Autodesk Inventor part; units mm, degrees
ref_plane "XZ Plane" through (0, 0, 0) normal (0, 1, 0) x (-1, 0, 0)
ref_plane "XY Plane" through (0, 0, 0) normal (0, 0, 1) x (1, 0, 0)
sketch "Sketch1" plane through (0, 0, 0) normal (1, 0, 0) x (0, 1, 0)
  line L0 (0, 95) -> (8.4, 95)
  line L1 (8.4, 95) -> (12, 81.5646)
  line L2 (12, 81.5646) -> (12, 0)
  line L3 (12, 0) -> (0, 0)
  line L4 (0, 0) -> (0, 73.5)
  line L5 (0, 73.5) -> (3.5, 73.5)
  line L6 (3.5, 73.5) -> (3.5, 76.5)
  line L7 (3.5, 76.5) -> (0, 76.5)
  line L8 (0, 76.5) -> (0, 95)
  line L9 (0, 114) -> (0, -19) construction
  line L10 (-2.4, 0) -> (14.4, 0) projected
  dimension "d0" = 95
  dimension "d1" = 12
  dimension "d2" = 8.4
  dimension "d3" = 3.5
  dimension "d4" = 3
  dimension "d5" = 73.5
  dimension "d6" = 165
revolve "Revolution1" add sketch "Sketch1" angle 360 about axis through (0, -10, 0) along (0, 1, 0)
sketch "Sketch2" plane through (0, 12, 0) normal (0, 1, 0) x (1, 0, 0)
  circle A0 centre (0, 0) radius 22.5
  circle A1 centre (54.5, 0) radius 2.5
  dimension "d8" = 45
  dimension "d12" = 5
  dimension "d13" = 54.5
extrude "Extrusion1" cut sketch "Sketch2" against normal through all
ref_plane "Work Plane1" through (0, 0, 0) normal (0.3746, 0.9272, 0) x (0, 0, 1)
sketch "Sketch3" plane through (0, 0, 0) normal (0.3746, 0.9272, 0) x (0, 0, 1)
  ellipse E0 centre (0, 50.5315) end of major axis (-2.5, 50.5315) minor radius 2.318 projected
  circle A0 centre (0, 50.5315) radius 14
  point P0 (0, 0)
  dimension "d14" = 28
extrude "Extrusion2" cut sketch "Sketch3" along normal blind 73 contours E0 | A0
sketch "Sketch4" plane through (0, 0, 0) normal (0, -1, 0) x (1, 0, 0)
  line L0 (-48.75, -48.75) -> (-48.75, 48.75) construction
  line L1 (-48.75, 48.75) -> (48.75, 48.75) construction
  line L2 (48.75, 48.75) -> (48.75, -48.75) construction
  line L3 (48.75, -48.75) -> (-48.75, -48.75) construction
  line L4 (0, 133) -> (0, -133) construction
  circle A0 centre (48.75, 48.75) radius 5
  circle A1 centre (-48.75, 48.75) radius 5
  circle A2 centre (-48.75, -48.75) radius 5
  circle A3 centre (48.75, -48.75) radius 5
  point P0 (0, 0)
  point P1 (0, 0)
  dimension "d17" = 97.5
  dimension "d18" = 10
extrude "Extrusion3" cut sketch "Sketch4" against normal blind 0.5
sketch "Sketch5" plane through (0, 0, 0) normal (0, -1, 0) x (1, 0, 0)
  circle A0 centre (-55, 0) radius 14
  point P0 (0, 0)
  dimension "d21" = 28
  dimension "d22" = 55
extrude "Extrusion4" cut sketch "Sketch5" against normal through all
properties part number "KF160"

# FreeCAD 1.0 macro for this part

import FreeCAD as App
import Part
import Sketcher
from FreeCAD import Vector
Q = App.Units.Quantity


def add_polygon(sketch, points):
    """Adds a closed chain of lines whose ends are joined by coincident constraints."""
    first, n = sketch.GeometryCount, len(points)
    for a, b in zip(points, points[1:] + points[:1]):
        sketch.addGeometry(Part.LineSegment(App.Vector(*a, 0), App.Vector(*b, 0)), False)
    for i in range(n):
        sketch.addConstraint(Sketcher.Constraint("Coincident", first + i, 2, first + (i + 1) % n, 1))

doc = App.newDocument("Part")
body = doc.addObject("PartDesign::Body", "Body")

# Sketch on YZ plane
sketch1 = body.newObject("Sketcher::SketchObject", "Sketch")
sketch1.AttachmentSupport = (doc.getObject("YZ_Plane"), [""])
sketch1.MapMode = "FlatFace"
add_polygon(sketch1, [(8.4, 95), (0, 95), (0, 76.5), (3.5, 76.5), (3.5, 73.5), (0, 73.5), (0, 0), (12, 0), (12, 81.6)])  # lines 0-8
sketch1.addConstraint([
    Sketcher.Constraint("Horizontal", 0),
    Sketcher.Constraint("Vertical", 1),
    Sketcher.Constraint("Horizontal", 2),
    Sketcher.Constraint("Vertical", 3),
    Sketcher.Constraint("Horizontal", 4),
    Sketcher.Constraint("Vertical", 5),
    Sketcher.Constraint("Horizontal", 6),
    Sketcher.Constraint("Vertical", 7),
    Sketcher.Constraint("Coincident", 5, 2, -1, 1),
    Sketcher.Constraint("PointOnObject", 0, 2, -2),
    Sketcher.Constraint("DistanceX", 6, 1, 6, 2, Q("12 mm")),
    Sketcher.Constraint("DistanceY", 3, 2, 3, 1, Q("3 mm")),
    Sketcher.Constraint("DistanceX", 0, 2, 0, 1, Q("8.4 mm")),
    Sketcher.Constraint("DistanceX", 2, 1, 2, 2, Q("3.5 mm")),
    Sketcher.Constraint("DistanceY", 5, 2, 5, 1, Q("73.5 mm")),
    Sketcher.Constraint("DistanceY", -1, 1, 0, 2, Q("95 mm")),
    Sketcher.Constraint("Angle", 8, Q("105 deg")),
])
revolution = body.newObject("PartDesign::Revolution", "Revolution")
revolution.Profile = sketch1
revolution.ReferenceAxis = (sketch1, ["H_Axis"])
revolution.Angle = 360

# Sketch on XZ plane
sketch2 = body.newObject("Sketcher::SketchObject", "Sketch001")
sketch2.AttachmentSupport = (doc.getObject("XZ_Plane"), [""])
sketch2.MapMode = "FlatFace"
sketch2.AttachmentOffset = App.Placement(Vector(0, 0, -12), App.Rotation())
sketch2.addGeometry([
    Part.Circle(Vector(0, 0, 0), Vector(0, 0, 1), 22.5),
    Part.Circle(Vector(54.5, 0, 0), Vector(0, 0, 1), 2.5),
], False)
sketch2.addConstraint([
    Sketcher.Constraint("Coincident", 0, 3, -1, 1),
    Sketcher.Constraint("PointOnObject", 1, 3, -1),
    Sketcher.Constraint("Diameter", 0, Q("45 mm")),
    Sketcher.Constraint("Diameter", 1, Q("5 mm")),
    Sketcher.Constraint("DistanceX", -1, 1, 1, 3, Q("54.5 mm")),
])
pocket1 = body.newObject("PartDesign::Pocket", "Pocket")
pocket1.Profile = sketch2
pocket1.Type = "ThroughAll"
pocket1.Reversed = True

# Sketch on an angled plane
sketch3 = body.newObject("Sketcher::SketchObject", "Sketch002")
sketch3.Placement = App.Placement(Vector(0, 0, 0), App.Rotation(Vector(0, 0, 1), Vector(0.927183855, -0.374606593, 0), Vector(0.374606593, 0.927183855, 0), "ZXY"))
sketch3.addGeometry(Part.Circle(Vector(0, 51, 0), Vector(0, 0, 1), 14), False)
sketch3.addConstraint([
    Sketcher.Constraint("PointOnObject", 0, 3, -2),
    Sketcher.Constraint("Diameter", 0, Q("28 mm")),
    Sketcher.Constraint("DistanceY", -1, 1, 0, 3, Q("50.5315 mm")),
])
pocket2 = body.newObject("PartDesign::Pocket", "Pocket001")
pocket2.Profile = sketch3
pocket2.Length = 73
pocket2.Reversed = True

# Sketch on XZ plane
sketch4 = body.newObject("Sketcher::SketchObject", "Sketch003")
sketch4.AttachmentSupport = (doc.getObject("XZ_Plane"), [""])
sketch4.MapMode = "FlatFace"
sketch4.addGeometry([
    Part.Circle(Vector(49, 49, 0), Vector(0, 0, 1), 5),
    Part.Circle(Vector(-49, 49, 0), Vector(0, 0, 1), 5),
    Part.Circle(Vector(-49, -49, 0), Vector(0, 0, 1), 5),
    Part.Circle(Vector(49, -49, 0), Vector(0, 0, 1), 5),
], False)
sketch4.addConstraint([
    Sketcher.Constraint("Equal", 0, 1),
    Sketcher.Constraint("Equal", 1, 2),
    Sketcher.Constraint("Equal", 2, 3),
    Sketcher.Constraint("Symmetric", 0, 3, 2, 3, -1, 1),
    Sketcher.Constraint("Symmetric", 1, 3, 3, 3, -1, 1),
    Sketcher.Constraint("Symmetric", 0, 3, 1, 3, -2),
    Sketcher.Constraint("Diameter", 0, Q("10 mm")),
    Sketcher.Constraint("DistanceX", 1, 3, 0, 3, Q("97.5 mm")),
    Sketcher.Constraint("DistanceY", 2, 3, 1, 3, Q("97.5 mm")),
])
pocket3 = body.newObject("PartDesign::Pocket", "Pocket002")
pocket3.Profile = sketch4
pocket3.Length = 0.5

# Sketch on XZ plane
sketch5 = body.newObject("Sketcher::SketchObject", "Sketch004")
sketch5.AttachmentSupport = (doc.getObject("XZ_Plane"), [""])
sketch5.MapMode = "FlatFace"
sketch5.addGeometry(Part.Circle(Vector(-55, 0, 0), Vector(0, 0, 1), 14), False)
sketch5.addConstraint([
    Sketcher.Constraint("PointOnObject", 0, 3, -1),
    Sketcher.Constraint("Diameter", 0, Q("28 mm")),
    Sketcher.Constraint("DistanceX", 0, 3, -1, 1, Q("55 mm")),
])
pocket4 = body.newObject("PartDesign::Pocket", "Pocket003")
pocket4.Profile = sketch5
pocket4.Type = "ThroughAll"

doc.recompute()
